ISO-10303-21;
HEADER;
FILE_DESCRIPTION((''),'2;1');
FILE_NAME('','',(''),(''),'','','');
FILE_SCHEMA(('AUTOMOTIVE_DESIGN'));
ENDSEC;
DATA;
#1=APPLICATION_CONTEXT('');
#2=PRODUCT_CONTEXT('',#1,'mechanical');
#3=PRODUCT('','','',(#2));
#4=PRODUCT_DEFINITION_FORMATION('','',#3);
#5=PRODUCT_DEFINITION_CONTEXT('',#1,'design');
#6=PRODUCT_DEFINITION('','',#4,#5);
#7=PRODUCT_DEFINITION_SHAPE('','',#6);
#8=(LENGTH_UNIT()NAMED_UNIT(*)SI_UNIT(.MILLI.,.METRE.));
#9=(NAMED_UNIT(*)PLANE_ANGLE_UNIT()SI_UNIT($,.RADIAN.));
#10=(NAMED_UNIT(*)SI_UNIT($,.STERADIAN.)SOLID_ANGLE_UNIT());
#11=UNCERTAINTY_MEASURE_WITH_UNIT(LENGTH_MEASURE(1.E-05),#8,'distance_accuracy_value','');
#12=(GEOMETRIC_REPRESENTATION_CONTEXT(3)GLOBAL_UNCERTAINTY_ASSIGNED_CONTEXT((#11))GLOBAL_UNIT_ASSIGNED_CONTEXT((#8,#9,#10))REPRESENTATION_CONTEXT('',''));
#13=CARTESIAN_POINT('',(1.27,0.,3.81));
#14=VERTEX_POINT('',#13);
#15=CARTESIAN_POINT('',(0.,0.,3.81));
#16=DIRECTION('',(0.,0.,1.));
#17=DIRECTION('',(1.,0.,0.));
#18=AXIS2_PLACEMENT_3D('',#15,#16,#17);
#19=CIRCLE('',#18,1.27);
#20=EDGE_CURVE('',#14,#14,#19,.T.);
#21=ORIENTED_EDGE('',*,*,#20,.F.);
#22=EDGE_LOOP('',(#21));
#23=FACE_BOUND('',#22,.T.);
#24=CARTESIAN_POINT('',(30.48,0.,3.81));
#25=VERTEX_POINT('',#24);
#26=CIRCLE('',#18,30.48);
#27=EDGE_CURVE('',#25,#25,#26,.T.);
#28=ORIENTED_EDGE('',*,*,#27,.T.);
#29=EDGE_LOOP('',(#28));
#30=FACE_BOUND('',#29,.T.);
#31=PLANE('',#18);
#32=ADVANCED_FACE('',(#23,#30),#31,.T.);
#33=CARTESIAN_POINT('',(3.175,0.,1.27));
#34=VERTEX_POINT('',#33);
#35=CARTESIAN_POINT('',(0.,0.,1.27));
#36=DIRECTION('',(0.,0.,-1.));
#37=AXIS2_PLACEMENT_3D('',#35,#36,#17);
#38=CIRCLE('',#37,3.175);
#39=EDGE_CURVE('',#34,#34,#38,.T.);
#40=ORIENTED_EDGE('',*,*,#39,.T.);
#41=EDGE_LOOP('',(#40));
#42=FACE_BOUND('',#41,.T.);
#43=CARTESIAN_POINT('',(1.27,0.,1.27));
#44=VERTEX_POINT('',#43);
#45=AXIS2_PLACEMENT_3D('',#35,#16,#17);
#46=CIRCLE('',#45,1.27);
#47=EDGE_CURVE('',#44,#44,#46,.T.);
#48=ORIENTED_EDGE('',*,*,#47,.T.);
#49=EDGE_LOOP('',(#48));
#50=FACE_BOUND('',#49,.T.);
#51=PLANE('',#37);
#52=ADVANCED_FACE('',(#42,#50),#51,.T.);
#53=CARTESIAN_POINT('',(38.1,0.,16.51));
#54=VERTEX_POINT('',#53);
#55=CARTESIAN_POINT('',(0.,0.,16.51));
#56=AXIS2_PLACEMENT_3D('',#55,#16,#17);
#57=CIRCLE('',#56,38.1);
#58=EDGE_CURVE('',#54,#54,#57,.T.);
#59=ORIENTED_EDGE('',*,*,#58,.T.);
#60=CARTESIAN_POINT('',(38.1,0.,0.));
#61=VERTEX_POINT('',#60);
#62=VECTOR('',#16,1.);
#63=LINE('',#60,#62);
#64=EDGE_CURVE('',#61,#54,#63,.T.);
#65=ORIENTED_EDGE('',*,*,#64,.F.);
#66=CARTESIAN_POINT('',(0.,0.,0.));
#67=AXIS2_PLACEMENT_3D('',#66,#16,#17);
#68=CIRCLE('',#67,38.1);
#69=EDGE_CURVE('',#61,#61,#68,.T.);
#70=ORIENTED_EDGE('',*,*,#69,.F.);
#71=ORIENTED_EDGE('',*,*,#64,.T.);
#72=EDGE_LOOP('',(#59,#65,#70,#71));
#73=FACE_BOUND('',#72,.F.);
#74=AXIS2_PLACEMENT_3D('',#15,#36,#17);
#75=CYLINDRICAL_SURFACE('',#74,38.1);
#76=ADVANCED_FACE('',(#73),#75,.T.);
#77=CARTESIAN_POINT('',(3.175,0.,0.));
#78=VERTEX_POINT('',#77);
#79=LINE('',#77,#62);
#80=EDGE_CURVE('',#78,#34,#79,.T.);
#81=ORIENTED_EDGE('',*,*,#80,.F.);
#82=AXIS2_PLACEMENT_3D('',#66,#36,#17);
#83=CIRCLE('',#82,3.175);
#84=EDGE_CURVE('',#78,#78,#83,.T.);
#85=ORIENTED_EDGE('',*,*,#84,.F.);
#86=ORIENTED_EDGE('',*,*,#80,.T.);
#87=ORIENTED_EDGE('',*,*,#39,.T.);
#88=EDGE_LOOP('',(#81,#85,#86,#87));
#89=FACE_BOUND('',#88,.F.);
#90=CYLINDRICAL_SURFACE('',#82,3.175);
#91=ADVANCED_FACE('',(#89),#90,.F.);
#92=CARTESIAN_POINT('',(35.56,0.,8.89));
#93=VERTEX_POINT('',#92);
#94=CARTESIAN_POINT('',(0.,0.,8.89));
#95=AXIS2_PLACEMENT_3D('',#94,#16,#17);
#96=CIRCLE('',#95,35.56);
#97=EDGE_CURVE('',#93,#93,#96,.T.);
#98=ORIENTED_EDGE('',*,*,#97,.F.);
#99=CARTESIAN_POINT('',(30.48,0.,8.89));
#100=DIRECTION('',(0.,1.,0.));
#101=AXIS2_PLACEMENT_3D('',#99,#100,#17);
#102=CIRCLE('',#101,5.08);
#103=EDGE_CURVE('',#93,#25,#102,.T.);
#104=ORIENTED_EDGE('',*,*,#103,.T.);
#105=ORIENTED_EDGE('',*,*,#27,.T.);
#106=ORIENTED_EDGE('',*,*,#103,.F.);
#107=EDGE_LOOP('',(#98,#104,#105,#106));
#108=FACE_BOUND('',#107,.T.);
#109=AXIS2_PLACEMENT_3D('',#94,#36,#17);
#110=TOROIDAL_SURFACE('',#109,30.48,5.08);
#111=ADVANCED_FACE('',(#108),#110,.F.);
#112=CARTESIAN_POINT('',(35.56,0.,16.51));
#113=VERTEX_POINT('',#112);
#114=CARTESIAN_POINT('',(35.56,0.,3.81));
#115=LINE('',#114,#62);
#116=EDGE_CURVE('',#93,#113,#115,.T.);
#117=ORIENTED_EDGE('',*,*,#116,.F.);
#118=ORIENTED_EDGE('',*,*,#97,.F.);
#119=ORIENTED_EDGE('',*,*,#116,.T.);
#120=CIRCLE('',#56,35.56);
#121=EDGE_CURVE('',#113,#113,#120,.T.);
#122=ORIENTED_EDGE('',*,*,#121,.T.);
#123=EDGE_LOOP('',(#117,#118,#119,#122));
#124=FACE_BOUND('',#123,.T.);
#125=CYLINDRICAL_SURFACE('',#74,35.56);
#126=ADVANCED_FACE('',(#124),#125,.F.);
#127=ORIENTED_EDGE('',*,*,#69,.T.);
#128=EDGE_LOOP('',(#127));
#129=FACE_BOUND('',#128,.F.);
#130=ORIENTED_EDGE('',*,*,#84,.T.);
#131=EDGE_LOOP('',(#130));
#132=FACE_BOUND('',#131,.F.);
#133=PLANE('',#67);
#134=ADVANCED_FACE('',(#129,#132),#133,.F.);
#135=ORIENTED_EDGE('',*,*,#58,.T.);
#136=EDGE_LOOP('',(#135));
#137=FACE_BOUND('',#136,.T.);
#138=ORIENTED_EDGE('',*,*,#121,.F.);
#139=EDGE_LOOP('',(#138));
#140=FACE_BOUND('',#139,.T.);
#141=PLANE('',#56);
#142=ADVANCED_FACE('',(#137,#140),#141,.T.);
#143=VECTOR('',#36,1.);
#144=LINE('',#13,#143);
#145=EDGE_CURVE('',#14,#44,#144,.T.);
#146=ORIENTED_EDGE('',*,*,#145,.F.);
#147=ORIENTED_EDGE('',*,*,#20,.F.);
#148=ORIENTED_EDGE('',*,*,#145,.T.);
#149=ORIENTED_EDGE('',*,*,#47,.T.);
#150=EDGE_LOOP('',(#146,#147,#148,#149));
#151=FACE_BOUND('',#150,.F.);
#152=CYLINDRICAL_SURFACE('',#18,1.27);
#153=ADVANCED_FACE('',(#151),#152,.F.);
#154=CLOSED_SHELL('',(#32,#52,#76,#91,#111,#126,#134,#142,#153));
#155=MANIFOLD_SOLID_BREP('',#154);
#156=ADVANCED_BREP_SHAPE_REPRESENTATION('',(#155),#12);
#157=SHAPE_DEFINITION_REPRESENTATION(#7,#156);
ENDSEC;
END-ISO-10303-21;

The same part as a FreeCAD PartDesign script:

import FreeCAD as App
import Part
import Sketcher
Q = App.Units.Quantity


def edges_at(feature, points):
    """Names of the edges that pass closest to the given points."""
    edges = feature.Shape.Edges
    near = lambda p: min(range(len(edges)), key=lambda i: edges[i].distToShape(Part.Vertex(*p))[0])
    return sorted({f"Edge{near(p) + 1}" for p in points})

doc = App.newDocument("Part")
params = doc.addObject("Spreadsheet::Sheet", "Params")
for row, (alias, value) in enumerate([
    ("sketch1_diameter", "3 in"),
    ("pad1_length", "0.15 in"),
    ("sketch2_diameter", "3 in"),
    ("sketch2_diameter2", "2.8 in"),
    ("pad2_length", "0.5 in"),
    ("fillet_radius", "0.2 in"),
    ("sketch3_diameter", "0.1 in"),
    ("pocket1_length", "1 in"),
    ("sketch4_diameter", "0.25 in"),
    ("pocket2_length", "0.05 in"),
], start=1):
    params.set(f"A{row}", alias)
    params.set(f"B{row}", "=" + value)
    params.setAlias(f"B{row}", alias)

body = doc.addObject("PartDesign::Body", "Body")

# Sketch on XY plane
sketch1 = body.newObject("Sketcher::SketchObject", "Sketch")
sketch1.AttachmentSupport = (doc.getObject("XY_Plane"), [""])
sketch1.MapMode = "FlatFace"
sketch1.addGeometry(Part.Circle(App.Vector(0, 0, 0), App.Vector(0, 0, 1), 38), False)
sketch1.addConstraint([
    Sketcher.Constraint("Coincident", 0, 3, -1, 1),
    Sketcher.Constraint("Diameter", 0, Q("3 in")),
])
sketch1.setExpression("Constraints[1]", "Params.sketch1_diameter")
pad1 = body.newObject("PartDesign::Pad", "Pad")
pad1.Profile = sketch1
pad1.setExpression("Length", "Params.pad1_length")

# Sketch on XY plane
sketch2 = body.newObject("Sketcher::SketchObject", "Sketch001")
sketch2.AttachmentSupport = (doc.getObject("XY_Plane"), [""])
sketch2.MapMode = "FlatFace"
sketch2.AttachmentOffset = App.Placement(App.Vector(0, 0, 0.15 * 25.4), App.Rotation())
sketch2.addGeometry([
    Part.Circle(App.Vector(0, 0, 0), App.Vector(0, 0, 1), 38),
    Part.Circle(App.Vector(0, 0, 0), App.Vector(0, 0, 1), 36),
], False)
sketch2.addConstraint([
    Sketcher.Constraint("Coincident", 0, 3, -1, 1),
    Sketcher.Constraint("Coincident", 1, 3, -1, 1),
    Sketcher.Constraint("Diameter", 0, Q("3 in")),
    Sketcher.Constraint("Diameter", 1, Q("2.8 in")),
])
sketch2.setExpression("Constraints[2]", "Params.sketch2_diameter")
sketch2.setExpression("Constraints[3]", "Params.sketch2_diameter2")
pad2 = body.newObject("PartDesign::Pad", "Pad001")
pad2.Profile = sketch2
pad2.setExpression("Length", "Params.pad2_length")
doc.recompute()

fillet = body.newObject("PartDesign::Fillet", "Fillet")
fillet.Base = (pad2, edges_at(pad2, [(-35.56, 0, 3.81)]))
fillet.setExpression("Radius", "Params.fillet_radius")

# Sketch on XY plane
sketch3 = body.newObject("Sketcher::SketchObject", "Sketch002")
sketch3.AttachmentSupport = (doc.getObject("XY_Plane"), [""])
sketch3.MapMode = "FlatFace"
sketch3.AttachmentOffset = App.Placement(App.Vector(0, 0, 0.15 * 25.4), App.Rotation())
sketch3.addGeometry(Part.Circle(App.Vector(0, 0, 0), App.Vector(0, 0, 1), 1.3), False)
sketch3.addConstraint([
    Sketcher.Constraint("Coincident", 0, 3, -1, 1),
    Sketcher.Constraint("Diameter", 0, Q("0.1 in")),
])
sketch3.setExpression("Constraints[1]", "Params.sketch3_diameter")
pocket1 = body.newObject("PartDesign::Pocket", "Pocket")
pocket1.Profile = sketch3
pocket1.setExpression("Length", "Params.pocket1_length")

# Sketch on XY plane
sketch4 = body.newObject("Sketcher::SketchObject", "Sketch003")
sketch4.AttachmentSupport = (doc.getObject("XY_Plane"), [""])
sketch4.MapMode = "FlatFace"
sketch4.addGeometry(Part.Circle(App.Vector(0, 0, 0), App.Vector(0, 0, 1), 3.2), False)
sketch4.addConstraint([
    Sketcher.Constraint("Coincident", 0, 3, -1, 1),
    Sketcher.Constraint("Diameter", 0, Q("0.25 in")),
])
sketch4.setExpression("Constraints[1]", "Params.sketch4_diameter")
pocket2 = body.newObject("PartDesign::Pocket", "Pocket001")
pocket2.Profile = sketch4
pocket2.setExpression("Length", "Params.pocket2_length")
pocket2.Reversed = True

doc.recompute()
